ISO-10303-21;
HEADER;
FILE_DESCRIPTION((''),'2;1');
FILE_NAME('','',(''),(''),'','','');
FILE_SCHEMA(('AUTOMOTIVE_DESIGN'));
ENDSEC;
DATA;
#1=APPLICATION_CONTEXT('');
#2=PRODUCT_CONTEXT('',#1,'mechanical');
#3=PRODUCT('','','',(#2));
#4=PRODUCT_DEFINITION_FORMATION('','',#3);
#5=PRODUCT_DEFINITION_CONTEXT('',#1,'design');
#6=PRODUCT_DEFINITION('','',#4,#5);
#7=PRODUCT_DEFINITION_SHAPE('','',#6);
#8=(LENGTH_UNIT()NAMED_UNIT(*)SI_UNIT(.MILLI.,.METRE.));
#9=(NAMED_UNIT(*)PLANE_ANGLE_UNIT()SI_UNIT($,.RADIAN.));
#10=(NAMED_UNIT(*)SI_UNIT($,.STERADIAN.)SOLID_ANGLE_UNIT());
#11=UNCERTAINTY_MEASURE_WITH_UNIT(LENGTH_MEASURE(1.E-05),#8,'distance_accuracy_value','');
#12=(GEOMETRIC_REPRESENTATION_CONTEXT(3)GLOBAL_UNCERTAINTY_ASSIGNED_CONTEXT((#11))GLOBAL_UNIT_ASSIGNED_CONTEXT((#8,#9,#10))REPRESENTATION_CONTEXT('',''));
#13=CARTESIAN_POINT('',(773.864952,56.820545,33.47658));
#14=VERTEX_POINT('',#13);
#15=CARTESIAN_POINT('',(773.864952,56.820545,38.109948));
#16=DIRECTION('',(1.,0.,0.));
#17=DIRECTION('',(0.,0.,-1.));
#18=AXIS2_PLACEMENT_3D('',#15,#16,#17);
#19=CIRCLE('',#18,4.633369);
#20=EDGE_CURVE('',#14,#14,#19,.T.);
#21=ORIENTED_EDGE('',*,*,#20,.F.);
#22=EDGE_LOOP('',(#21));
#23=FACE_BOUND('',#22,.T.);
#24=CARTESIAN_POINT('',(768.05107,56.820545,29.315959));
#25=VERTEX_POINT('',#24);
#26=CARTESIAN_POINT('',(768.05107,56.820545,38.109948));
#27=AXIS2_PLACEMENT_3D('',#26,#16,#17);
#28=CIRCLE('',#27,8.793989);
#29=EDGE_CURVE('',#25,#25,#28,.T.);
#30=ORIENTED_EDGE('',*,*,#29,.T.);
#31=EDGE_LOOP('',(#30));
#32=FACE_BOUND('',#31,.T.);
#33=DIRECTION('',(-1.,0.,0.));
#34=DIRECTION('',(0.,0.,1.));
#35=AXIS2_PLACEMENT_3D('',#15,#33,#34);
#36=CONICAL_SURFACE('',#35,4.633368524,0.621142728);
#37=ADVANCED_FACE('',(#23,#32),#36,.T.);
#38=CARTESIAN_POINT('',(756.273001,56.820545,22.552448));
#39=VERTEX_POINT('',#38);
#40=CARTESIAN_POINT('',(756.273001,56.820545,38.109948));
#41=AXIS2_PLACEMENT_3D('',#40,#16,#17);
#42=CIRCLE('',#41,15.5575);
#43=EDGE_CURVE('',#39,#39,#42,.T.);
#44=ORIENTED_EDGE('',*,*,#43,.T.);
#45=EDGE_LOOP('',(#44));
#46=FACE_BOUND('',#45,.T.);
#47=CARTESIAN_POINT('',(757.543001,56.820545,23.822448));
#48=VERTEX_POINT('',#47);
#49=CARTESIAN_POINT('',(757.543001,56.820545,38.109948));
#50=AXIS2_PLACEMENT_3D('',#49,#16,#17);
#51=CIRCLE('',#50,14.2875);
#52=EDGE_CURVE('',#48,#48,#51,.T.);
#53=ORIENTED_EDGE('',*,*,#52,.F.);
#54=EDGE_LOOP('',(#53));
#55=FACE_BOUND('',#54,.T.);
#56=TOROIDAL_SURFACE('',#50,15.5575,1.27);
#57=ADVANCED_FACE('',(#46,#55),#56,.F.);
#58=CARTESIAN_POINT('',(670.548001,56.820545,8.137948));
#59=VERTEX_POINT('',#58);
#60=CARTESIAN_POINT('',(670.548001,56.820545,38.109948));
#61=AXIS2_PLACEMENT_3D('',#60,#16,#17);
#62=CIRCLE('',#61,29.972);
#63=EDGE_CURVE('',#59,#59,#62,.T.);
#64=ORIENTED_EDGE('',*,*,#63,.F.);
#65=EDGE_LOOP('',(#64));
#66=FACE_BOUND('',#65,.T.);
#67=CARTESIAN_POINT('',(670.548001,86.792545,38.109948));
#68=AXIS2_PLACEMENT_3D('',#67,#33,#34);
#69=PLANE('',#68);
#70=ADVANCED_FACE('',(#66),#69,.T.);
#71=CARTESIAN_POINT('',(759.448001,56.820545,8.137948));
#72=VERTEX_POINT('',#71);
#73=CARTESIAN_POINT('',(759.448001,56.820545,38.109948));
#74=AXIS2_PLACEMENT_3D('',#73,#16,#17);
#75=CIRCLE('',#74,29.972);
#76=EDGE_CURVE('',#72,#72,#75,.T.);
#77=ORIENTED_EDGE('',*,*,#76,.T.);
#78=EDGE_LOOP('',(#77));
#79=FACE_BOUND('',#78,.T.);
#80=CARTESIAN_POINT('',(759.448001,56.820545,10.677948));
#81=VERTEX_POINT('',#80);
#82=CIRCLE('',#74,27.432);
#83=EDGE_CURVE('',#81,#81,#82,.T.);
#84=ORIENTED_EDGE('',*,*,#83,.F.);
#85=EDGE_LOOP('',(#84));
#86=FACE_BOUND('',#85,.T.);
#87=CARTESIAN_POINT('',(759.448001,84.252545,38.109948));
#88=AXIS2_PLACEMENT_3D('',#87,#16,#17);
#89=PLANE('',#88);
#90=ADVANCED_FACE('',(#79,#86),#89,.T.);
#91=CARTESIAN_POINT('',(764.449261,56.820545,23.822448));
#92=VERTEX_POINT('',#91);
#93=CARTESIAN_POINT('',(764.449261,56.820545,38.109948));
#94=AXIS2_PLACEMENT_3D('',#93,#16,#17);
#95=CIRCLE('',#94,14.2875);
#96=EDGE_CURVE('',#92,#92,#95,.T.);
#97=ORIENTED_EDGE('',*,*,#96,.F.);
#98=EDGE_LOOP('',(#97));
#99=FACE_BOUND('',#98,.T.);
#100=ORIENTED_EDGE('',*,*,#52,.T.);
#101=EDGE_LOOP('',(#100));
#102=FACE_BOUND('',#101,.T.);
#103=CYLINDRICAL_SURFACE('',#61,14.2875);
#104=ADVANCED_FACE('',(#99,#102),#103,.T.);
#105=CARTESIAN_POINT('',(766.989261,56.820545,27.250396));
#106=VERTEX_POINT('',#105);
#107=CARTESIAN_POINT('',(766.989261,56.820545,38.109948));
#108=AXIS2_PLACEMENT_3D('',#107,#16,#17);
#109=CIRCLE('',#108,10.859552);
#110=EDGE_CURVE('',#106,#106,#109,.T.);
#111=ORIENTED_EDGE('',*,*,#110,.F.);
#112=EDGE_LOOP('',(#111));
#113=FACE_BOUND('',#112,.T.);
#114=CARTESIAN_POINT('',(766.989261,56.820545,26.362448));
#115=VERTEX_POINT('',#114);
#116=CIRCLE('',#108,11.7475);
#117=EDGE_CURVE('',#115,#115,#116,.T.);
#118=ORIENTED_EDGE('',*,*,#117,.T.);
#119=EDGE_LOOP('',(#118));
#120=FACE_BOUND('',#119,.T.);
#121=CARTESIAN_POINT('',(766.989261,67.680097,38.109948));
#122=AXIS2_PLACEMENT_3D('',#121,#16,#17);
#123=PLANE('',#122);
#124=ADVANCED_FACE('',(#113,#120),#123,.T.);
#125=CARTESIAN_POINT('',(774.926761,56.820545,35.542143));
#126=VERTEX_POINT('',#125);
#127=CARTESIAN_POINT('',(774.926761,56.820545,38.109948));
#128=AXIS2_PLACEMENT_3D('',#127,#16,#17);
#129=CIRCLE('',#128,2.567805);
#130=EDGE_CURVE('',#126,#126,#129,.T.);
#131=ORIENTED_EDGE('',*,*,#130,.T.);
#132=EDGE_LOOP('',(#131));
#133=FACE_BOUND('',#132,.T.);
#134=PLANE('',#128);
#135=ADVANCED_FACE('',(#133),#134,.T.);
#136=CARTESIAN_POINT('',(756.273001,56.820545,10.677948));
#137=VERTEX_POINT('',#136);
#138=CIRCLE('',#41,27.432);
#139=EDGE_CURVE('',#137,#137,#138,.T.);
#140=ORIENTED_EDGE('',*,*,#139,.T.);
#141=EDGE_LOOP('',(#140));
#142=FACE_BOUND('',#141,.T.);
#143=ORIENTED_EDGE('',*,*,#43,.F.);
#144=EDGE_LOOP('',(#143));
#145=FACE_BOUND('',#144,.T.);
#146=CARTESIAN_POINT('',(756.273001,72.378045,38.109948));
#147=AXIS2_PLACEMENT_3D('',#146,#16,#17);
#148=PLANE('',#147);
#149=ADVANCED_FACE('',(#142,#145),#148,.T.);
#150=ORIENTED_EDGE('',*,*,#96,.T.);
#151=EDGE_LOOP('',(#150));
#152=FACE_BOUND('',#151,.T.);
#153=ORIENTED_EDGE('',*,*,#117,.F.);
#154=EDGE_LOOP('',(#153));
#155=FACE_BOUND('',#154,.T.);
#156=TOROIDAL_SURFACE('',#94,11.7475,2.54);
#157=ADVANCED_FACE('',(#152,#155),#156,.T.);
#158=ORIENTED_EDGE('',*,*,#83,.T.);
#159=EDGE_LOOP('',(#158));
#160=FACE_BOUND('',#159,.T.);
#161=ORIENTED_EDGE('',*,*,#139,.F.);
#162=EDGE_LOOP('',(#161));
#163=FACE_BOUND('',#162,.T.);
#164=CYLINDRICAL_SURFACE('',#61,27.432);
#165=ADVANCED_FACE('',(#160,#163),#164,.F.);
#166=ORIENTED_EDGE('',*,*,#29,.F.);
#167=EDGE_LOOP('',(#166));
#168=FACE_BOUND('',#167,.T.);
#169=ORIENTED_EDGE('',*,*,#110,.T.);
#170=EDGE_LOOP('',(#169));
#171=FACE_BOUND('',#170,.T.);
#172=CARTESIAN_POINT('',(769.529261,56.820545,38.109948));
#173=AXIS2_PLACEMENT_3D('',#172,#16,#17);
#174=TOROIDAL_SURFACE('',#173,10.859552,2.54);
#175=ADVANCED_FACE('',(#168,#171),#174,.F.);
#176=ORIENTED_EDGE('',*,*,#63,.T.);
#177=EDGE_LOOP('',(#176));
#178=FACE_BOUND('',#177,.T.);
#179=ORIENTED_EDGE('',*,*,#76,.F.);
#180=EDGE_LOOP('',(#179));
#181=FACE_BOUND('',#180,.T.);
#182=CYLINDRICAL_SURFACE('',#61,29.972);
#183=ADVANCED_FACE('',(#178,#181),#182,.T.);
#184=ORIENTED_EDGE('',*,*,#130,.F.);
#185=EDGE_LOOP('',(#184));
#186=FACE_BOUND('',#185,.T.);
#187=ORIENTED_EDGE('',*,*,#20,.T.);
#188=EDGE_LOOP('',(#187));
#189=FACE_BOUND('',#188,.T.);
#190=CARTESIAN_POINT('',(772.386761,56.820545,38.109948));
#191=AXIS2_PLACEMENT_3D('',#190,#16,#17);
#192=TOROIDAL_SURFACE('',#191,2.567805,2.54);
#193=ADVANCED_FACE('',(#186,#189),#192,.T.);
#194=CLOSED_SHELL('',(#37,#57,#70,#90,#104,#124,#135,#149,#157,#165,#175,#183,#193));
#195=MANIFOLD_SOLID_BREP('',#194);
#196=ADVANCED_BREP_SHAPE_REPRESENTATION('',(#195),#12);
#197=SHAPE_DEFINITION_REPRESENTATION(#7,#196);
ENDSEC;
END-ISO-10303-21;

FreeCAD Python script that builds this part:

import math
import FreeCAD as App
import Part
import Sketcher

V = App.Vector
Q = App.Units.Quantity

doc = App.newDocument("Part")
params = doc.addObject("Spreadsheet::Sheet", "Params")
for row, (alias, value) in enumerate([
    ("sketch1_radius", "0.1 in"),
    ("sketch1_radius2", "0.05 in"),
    ("sketch1_width", "3.5 in"),
    ("sketch1_height", "0.1 in"),
    ("sketch1_height2", "1.18 in"),
    ("revolution_angle", "360 deg"),
], start=1):
    params.set(f"A{row}", alias)
    params.set(f"B{row}", "=" + value)
    params.setAlias(f"B{row}", alias)

body = doc.addObject("PartDesign::Body", "Body")

sketch1 = body.newObject("Sketcher::SketchObject", "Sketch")
sketch1.AttachmentSupport = (doc.getObject("XY_Plane"), [""])
sketch1.MapMode = "FlatFace"
sketch1.AttachmentOffset = App.Placement(V(0, 0, 38.109948), App.Rotation())
sketch1.addGeometry(Part.LineSegment(V(670.548001, 86.792545, 0), V(670.548001, 56.820545, 0)), False)
sketch1.addGeometry(Part.LineSegment(V(670.548001, 56.820545, 0), V(774.926761, 56.820545, 0)), False)
sketch1.addGeometry(Part.LineSegment(V(774.926761, 56.820545, 0), V(774.926761, 59.38835, 0)), False)
sketch1.addGeometry(Part.ArcOfCircle(Part.Circle(V(772.386761, 59.38835, 0), V(0, 0, 1), 2.54), math.radians(0), math.radians(54.411143)), False)
sketch1.addGeometry(Part.LineSegment(V(773.864952, 61.453914, 0), V(768.051071, 65.614534, 0)), False)
sketch1.addGeometry(Part.ArcOfCircle(Part.Circle(V(769.529261, 67.680097, 0), V(0, 0, 1), 2.54), math.radians(180), math.radians(234.411143)), False)
sketch1.addGeometry(Part.LineSegment(V(766.989261, 67.680097, 0), V(766.989261, 68.568045, 0)), False)
sketch1.addGeometry(Part.ArcOfCircle(Part.Circle(V(764.449261, 68.568045, 0), V(0, 0, 1), 2.54), math.radians(0), math.radians(90)), False)
sketch1.addGeometry(Part.LineSegment(V(764.449261, 71.108045, 0), V(757.543001, 71.108045, 0)), False)
sketch1.addGeometry(Part.ArcOfCircle(Part.Circle(V(757.543001, 72.378045, 0), V(0, 0, 1), 1.27), math.radians(180), math.radians(270)), False)
sketch1.addGeometry(Part.LineSegment(V(756.273001, 72.378045, 0), V(756.273001, 84.252545, 0)), False)
sketch1.addGeometry(Part.LineSegment(V(756.273001, 84.252545, 0), V(759.448001, 84.252545, 0)), False)
sketch1.addGeometry(Part.LineSegment(V(759.448001, 84.252545, 0), V(759.448001, 86.792545, 0)), False)
sketch1.addGeometry(Part.LineSegment(V(759.448001, 86.792545, 0), V(670.548001, 86.792545, 0)), False)
sketch1.addGeometry(Part.LineSegment(V(670.548001, 56.820545, 0), V(774.926761, 56.820545, 0)), True)
sketch1.addConstraint(Sketcher.Constraint("Coincident", 0, 2, 1, 1))
sketch1.addConstraint(Sketcher.Constraint("Coincident", 1, 2, 2, 1))
sketch1.addConstraint(Sketcher.Constraint("Tangent", 2, 2, 3, 1))
sketch1.addConstraint(Sketcher.Constraint("Tangent", 3, 2, 4, 1))
sketch1.addConstraint(Sketcher.Constraint("Tangent", 4, 2, 5, 2))
sketch1.addConstraint(Sketcher.Constraint("Tangent", 5, 1, 6, 1))
sketch1.addConstraint(Sketcher.Constraint("Tangent", 6, 2, 7, 1))
sketch1.addConstraint(Sketcher.Constraint("Tangent", 7, 2, 8, 1))
sketch1.addConstraint(Sketcher.Constraint("Tangent", 8, 2, 9, 2))
sketch1.addConstraint(Sketcher.Constraint("Tangent", 9, 1, 10, 1))
sketch1.addConstraint(Sketcher.Constraint("Coincident", 10, 2, 11, 1))
sketch1.addConstraint(Sketcher.Constraint("Coincident", 11, 2, 12, 1))
sketch1.addConstraint(Sketcher.Constraint("Coincident", 12, 2, 13, 1))
sketch1.addConstraint(Sketcher.Constraint("Coincident", 13, 2, 0, 1))
sketch1.addConstraint(Sketcher.Constraint("Vertical", 0))
sketch1.addConstraint(Sketcher.Constraint("Horizontal", 1))
sketch1.addConstraint(Sketcher.Constraint("Vertical", 2))
sketch1.addConstraint(Sketcher.Constraint("Vertical", 6))
sketch1.addConstraint(Sketcher.Constraint("Horizontal", 8))
sketch1.addConstraint(Sketcher.Constraint("Vertical", 10))
sketch1.addConstraint(Sketcher.Constraint("Horizontal", 11))
sketch1.addConstraint(Sketcher.Constraint("Vertical", 12))
sketch1.addConstraint(Sketcher.Constraint("Horizontal", 13))
sketch1.addConstraint(Sketcher.Constraint("Horizontal", 14))
sketch1.addConstraint(Sketcher.Constraint("Coincident", 14, 1, 0, 2))
sketch1.addConstraint(Sketcher.Constraint("Equal", 3, 5))
sketch1.addConstraint(Sketcher.Constraint("Equal", 5, 7))
sketch1.addConstraint(Sketcher.Constraint("Vertical", 2, 2, 14, 2))
sketch1.addConstraint(Sketcher.Constraint("Radius", 3, Q("0.1 in")))
sketch1.addConstraint(Sketcher.Constraint("Radius", 9, Q("0.05 in")))
sketch1.addConstraint(Sketcher.Constraint("DistanceX", 13, 2, 13, 1, Q("3.5 in")))
sketch1.addConstraint(Sketcher.Constraint("DistanceY", 12, 1, 12, 2, Q("0.1 in")))
sketch1.addConstraint(Sketcher.Constraint("DistanceY", 0, 2, 0, 1, Q("1.18 in")))
sketch1.addConstraint(Sketcher.Constraint("DistanceX", 11, 1, 11, 2, Q("0.125 in")))
sketch1.addConstraint(Sketcher.Constraint("DistanceX", 1, 1, 1, 2, Q("4.1094 in")))
sketch1.addConstraint(Sketcher.Constraint("DistanceX", 8, 2, 8, 1, Q("0.2719 in")))
sketch1.addConstraint(Sketcher.Constraint("DistanceY", 10, 1, 10, 2, Q("0.4675 in")))
sketch1.addConstraint(Sketcher.Constraint("DistanceX", -1, 1, 9, 3, Q("757.543001 mm")))
sketch1.addConstraint(Sketcher.Constraint("DistanceY", 2, 1, 2, 2, Q("2.567805 mm")))
sketch1.addConstraint(Sketcher.Constraint("DistanceY", 6, 1, 6, 2, Q("0.887948 mm")))
sketch1.addConstraint(Sketcher.Constraint("DistanceY", -1, 1, 3, 3, Q("59.38835 mm")))
sketch1.setExpression("Constraints[28]", "Params.sketch1_radius")
sketch1.setExpression("Constraints[29]", "Params.sketch1_radius2")
sketch1.setExpression("Constraints[30]", "Params.sketch1_width")
sketch1.setExpression("Constraints[31]", "Params.sketch1_height")
sketch1.setExpression("Constraints[32]", "Params.sketch1_height2")
revolution = body.newObject("PartDesign::Revolution", "Revolution")
revolution.Profile = sketch1
revolution.ReferenceAxis = (sketch1, ["Axis0"])
revolution.setExpression("Angle", "Params.revolution_angle")

doc.recompute()
